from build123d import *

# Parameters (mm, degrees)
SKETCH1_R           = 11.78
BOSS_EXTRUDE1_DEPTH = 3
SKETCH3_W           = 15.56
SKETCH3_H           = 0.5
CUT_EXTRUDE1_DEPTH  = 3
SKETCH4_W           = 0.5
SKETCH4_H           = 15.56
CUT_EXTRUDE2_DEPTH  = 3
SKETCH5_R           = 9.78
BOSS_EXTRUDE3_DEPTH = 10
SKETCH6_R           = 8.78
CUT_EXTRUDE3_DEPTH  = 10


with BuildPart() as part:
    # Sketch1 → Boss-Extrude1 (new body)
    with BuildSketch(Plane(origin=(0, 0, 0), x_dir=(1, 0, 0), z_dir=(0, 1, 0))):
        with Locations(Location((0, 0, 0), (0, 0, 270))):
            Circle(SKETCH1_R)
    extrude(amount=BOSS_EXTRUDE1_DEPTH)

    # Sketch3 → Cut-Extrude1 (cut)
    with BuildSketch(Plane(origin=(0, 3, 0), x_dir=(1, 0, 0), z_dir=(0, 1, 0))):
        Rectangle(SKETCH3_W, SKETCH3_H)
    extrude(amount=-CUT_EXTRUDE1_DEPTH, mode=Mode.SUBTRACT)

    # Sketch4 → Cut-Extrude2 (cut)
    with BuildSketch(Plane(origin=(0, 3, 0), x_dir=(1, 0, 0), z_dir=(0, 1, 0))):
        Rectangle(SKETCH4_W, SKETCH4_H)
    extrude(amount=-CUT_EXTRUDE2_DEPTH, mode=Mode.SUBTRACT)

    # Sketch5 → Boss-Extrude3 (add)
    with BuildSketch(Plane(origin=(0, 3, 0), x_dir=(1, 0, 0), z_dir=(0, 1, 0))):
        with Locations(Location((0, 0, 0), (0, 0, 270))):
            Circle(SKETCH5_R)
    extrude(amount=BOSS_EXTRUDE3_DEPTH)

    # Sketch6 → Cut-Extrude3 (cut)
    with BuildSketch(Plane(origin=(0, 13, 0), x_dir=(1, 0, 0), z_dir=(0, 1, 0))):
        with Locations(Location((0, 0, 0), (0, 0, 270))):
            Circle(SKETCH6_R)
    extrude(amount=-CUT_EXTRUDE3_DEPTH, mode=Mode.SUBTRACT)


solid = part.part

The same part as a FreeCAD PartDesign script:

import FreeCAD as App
import Part
import Sketcher
from FreeCAD import Vector
Q = App.Units.Quantity

doc = App.newDocument("Part")
params = doc.addObject("Spreadsheet::Sheet", "Params")
for row, (alias, value) in enumerate([
    ("sketch1_diameter", "23.56 mm"),
    ("pad1_length", "3 mm"),
    ("sketch2_height", "0.5 mm"),
    ("sketch2_width", "15.56 mm"),
    ("pocket1_length", "3 mm"),
    ("sketch3_width", "0.5 mm"),
    ("sketch3_height", "15.56 mm"),
    ("pocket2_length", "3 mm"),
    ("sketch4_diameter", "19.56 mm"),
    ("pad2_length", "10 mm"),
    ("sketch5_diameter", "17.56 mm"),
    ("pocket3_length", "10 mm"),
], start=1):
    params.set(f"A{row}", alias)
    params.set(f"B{row}", "=" + value)
    params.setAlias(f"B{row}", alias)

body = doc.addObject("PartDesign::Body", "Body")

sketch1 = body.newObject("Sketcher::SketchObject", "Sketch")
sketch1.AttachmentSupport = (doc.getObject("XZ_Plane"), [""])
sketch1.MapMode = "FlatFace"
sketch1.addGeometry(Part.Circle(Vector(0, 0, 0), Vector(0, 0, 1), 11.78), False)
sketch1.addConstraint(Sketcher.Constraint("Coincident", 0, 3, -1, 1))
sketch1.addConstraint(Sketcher.Constraint("Diameter", 0, Q("23.56 mm")))
sketch1.setExpression("Constraints[1]", "Params.sketch1_diameter")
pad1 = body.newObject("PartDesign::Pad", "Pad")
pad1.Profile = sketch1
pad1.setExpression("Length", "Params.pad1_length")
pad1.Reversed = True

sketch2 = body.newObject("Sketcher::SketchObject", "Sketch001")
sketch2.AttachmentSupport = (doc.getObject("XZ_Plane"), [""])
sketch2.MapMode = "FlatFace"
sketch2.AttachmentOffset = App.Placement(Vector(0, 0, -3), App.Rotation())
sketch2.addGeometry(Part.LineSegment(Vector(-7.78, -0.25, 0), Vector(-7.78, 0.25, 0)), False)
sketch2.addGeometry(Part.LineSegment(Vector(-7.78, 0.25, 0), Vector(7.78, 0.25, 0)), False)
sketch2.addGeometry(Part.LineSegment(Vector(7.78, 0.25, 0), Vector(7.78, -0.25, 0)), False)
sketch2.addGeometry(Part.LineSegment(Vector(7.78, -0.25, 0), Vector(-7.78, -0.25, 0)), False)
sketch2.addConstraint(Sketcher.Constraint("Coincident", 0, 2, 1, 1))
sketch2.addConstraint(Sketcher.Constraint("Coincident", 1, 2, 2, 1))
sketch2.addConstraint(Sketcher.Constraint("Coincident", 2, 2, 3, 1))
sketch2.addConstraint(Sketcher.Constraint("Coincident", 3, 2, 0, 1))
sketch2.addConstraint(Sketcher.Constraint("Vertical", 0))
sketch2.addConstraint(Sketcher.Constraint("Horizontal", 1))
sketch2.addConstraint(Sketcher.Constraint("Vertical", 2))
sketch2.addConstraint(Sketcher.Constraint("Horizontal", 3))
sketch2.addConstraint(Sketcher.Constraint("Symmetric", 0, 2, 2, 2, -1, 1))
sketch2.addConstraint(Sketcher.Constraint("DistanceY", 0, 1, 0, 2, Q("0.5 mm")))
sketch2.addConstraint(Sketcher.Constraint("DistanceX", 1, 1, 1, 2, Q("15.56 mm")))
sketch2.setExpression("Constraints[9]", "Params.sketch2_height")
sketch2.setExpression("Constraints[10]", "Params.sketch2_width")
pocket1 = body.newObject("PartDesign::Pocket", "Pocket")
pocket1.Profile = sketch2
pocket1.setExpression("Length", "Params.pocket1_length")
pocket1.Reversed = True

sketch3 = body.newObject("Sketcher::SketchObject", "Sketch002")
sketch3.AttachmentSupport = (doc.getObject("XZ_Plane"), [""])
sketch3.MapMode = "FlatFace"
sketch3.AttachmentOffset = App.Placement(Vector(0, 0, -3), App.Rotation())
sketch3.addGeometry(Part.LineSegment(Vector(-0.25, -7.78, 0), Vector(-0.25, 7.78, 0)), False)
sketch3.addGeometry(Part.LineSegment(Vector(-0.25, 7.78, 0), Vector(0.25, 7.78, 0)), False)
sketch3.addGeometry(Part.LineSegment(Vector(0.25, 7.78, 0), Vector(0.25, -7.78, 0)), False)
sketch3.addGeometry(Part.LineSegment(Vector(0.25, -7.78, 0), Vector(-0.25, -7.78, 0)), False)
sketch3.addConstraint(Sketcher.Constraint("Coincident", 0, 2, 1, 1))
sketch3.addConstraint(Sketcher.Constraint("Coincident", 1, 2, 2, 1))
sketch3.addConstraint(Sketcher.Constraint("Coincident", 2, 2, 3, 1))
sketch3.addConstraint(Sketcher.Constraint("Coincident", 3, 2, 0, 1))
sketch3.addConstraint(Sketcher.Constraint("Vertical", 0))
sketch3.addConstraint(Sketcher.Constraint("Horizontal", 1))
sketch3.addConstraint(Sketcher.Constraint("Vertical", 2))
sketch3.addConstraint(Sketcher.Constraint("Horizontal", 3))
sketch3.addConstraint(Sketcher.Constraint("Symmetric", 0, 2, 2, 2, -1, 1))
sketch3.addConstraint(Sketcher.Constraint("DistanceX", 1, 1, 1, 2, Q("0.5 mm")))
sketch3.addConstraint(Sketcher.Constraint("DistanceY", 0, 1, 0, 2, Q("15.56 mm")))
sketch3.setExpression("Constraints[9]", "Params.sketch3_width")
sketch3.setExpression("Constraints[10]", "Params.sketch3_height")
pocket2 = body.newObject("PartDesign::Pocket", "Pocket001")
pocket2.Profile = sketch3
pocket2.setExpression("Length", "Params.pocket2_length")
pocket2.Reversed = True

sketch4 = body.newObject("Sketcher::SketchObject", "Sketch003")
sketch4.AttachmentSupport = (doc.getObject("XZ_Plane"), [""])
sketch4.MapMode = "FlatFace"
sketch4.AttachmentOffset = App.Placement(Vector(0, 0, -3), App.Rotation())
sketch4.addGeometry(Part.Circle(Vector(0, 0, 0), Vector(0, 0, 1), 9.78), False)
sketch4.addConstraint(Sketcher.Constraint("Coincident", 0, 3, -1, 1))
sketch4.addConstraint(Sketcher.Constraint("Diameter", 0, Q("19.56 mm")))
sketch4.setExpression("Constraints[1]", "Params.sketch4_diameter")
pad2 = body.newObject("PartDesign::Pad", "Pad001")
pad2.Profile = sketch4
pad2.setExpression("Length", "Params.pad2_length")
pad2.Reversed = True

sketch5 = body.newObject("Sketcher::SketchObject", "Sketch004")
sketch5.AttachmentSupport = (doc.getObject("XZ_Plane"), [""])
sketch5.MapMode = "FlatFace"
sketch5.AttachmentOffset = App.Placement(Vector(0, 0, -13), App.Rotation())
sketch5.addGeometry(Part.Circle(Vector(0, 0, 0), Vector(0, 0, 1), 8.78), False)
sketch5.addConstraint(Sketcher.Constraint("Coincident", 0, 3, -1, 1))
sketch5.addConstraint(Sketcher.Constraint("Diameter", 0, Q("17.56 mm")))
sketch5.setExpression("Constraints[1]", "Params.sketch5_diameter")
pocket3 = body.newObject("PartDesign::Pocket", "Pocket002")
pocket3.Profile = sketch5
pocket3.setExpression("Length", "Params.pocket3_length")
pocket3.Reversed = True

doc.recompute()
